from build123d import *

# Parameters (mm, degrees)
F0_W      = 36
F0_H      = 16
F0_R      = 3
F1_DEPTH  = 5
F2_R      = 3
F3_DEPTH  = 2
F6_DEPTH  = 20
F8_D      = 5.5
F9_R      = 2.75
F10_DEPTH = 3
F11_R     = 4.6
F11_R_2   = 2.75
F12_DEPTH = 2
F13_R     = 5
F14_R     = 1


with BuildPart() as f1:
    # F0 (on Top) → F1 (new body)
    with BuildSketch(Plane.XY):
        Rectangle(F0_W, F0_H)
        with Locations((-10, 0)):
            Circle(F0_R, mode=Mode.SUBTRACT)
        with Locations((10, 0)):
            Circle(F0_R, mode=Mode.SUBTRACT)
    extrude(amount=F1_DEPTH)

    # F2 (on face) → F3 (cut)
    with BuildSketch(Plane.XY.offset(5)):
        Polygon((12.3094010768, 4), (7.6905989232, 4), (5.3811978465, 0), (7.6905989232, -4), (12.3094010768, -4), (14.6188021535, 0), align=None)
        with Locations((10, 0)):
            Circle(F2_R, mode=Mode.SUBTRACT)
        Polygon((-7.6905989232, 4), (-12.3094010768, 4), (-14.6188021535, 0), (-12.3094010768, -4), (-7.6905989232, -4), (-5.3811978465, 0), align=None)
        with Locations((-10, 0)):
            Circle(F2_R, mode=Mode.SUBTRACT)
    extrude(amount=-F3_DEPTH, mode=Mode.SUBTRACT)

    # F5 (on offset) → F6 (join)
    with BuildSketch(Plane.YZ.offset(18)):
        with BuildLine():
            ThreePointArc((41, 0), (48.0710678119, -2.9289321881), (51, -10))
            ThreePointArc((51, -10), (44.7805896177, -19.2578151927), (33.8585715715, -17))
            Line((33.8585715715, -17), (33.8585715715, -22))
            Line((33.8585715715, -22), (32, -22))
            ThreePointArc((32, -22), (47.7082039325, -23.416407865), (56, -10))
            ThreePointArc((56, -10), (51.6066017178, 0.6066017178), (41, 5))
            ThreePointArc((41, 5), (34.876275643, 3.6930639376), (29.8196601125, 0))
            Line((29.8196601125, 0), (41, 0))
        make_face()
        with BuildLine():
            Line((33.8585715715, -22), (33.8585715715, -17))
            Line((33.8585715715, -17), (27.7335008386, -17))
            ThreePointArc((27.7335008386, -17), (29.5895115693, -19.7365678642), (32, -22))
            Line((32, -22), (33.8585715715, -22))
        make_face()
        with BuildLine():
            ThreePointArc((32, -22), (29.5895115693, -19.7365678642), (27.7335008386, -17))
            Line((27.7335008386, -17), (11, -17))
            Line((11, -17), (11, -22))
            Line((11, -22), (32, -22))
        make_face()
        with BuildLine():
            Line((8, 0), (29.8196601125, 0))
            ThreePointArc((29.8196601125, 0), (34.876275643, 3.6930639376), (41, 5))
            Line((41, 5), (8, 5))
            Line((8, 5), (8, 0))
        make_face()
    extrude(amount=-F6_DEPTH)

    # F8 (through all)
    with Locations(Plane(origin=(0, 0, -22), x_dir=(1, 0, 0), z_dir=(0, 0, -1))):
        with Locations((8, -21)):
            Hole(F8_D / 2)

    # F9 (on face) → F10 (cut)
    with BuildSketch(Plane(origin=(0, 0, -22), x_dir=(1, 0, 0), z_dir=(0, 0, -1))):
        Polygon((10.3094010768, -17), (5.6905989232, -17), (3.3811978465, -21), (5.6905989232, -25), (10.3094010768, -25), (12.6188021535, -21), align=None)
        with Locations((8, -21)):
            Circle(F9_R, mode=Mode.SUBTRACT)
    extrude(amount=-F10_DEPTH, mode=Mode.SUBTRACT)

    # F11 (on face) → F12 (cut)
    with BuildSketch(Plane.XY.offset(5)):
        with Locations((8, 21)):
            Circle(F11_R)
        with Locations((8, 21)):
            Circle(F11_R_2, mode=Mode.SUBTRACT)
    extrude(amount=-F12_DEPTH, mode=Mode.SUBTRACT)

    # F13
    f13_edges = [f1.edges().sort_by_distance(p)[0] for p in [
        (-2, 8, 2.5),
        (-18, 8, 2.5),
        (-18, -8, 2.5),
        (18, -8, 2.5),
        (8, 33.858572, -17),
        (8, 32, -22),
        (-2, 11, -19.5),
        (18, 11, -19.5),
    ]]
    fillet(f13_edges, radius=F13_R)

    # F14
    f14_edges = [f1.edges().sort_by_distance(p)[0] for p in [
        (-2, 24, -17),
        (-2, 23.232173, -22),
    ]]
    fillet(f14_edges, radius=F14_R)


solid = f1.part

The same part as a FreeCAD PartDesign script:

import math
import FreeCAD as App
import Part
import Sketcher

V = App.Vector
Q = App.Units.Quantity


def edges_at(feature, points):
    """Names of the edges that pass closest to the given points."""
    edges = feature.Shape.Edges
    near = lambda p: min(range(len(edges)), key=lambda i: edges[i].distToShape(Part.Vertex(*p))[0])
    return sorted({f"Edge{near(p) + 1}" for p in points})

doc = App.newDocument("Part")
params = doc.addObject("Spreadsheet::Sheet", "Params")
for row, (alias, value) in enumerate([
    ("sketch1_diameter", "6 mm"),
    ("sketch1_width", "36 mm"),
    ("sketch1_height", "16 mm"),
    ("pad1_length", "5 mm"),
    ("sketch2_diameter", "6 mm"),
    ("pocket1_length", "2 mm"),
    ("sketch3_radius", "10 mm"),
    ("sketch3_radius2", "15 mm"),
    ("sketch3_width", "21 mm"),
    ("sketch3_width2", "33 mm"),
    ("pad2_length", "20 mm"),
    ("sketch4_diameter", "5.5 mm"),
    ("hole_diameter", "5.5 mm"),
    ("sketch5_diameter", "5.5 mm"),
    ("pocket2_length", "3 mm"),
    ("sketch6_diameter", "9.2 mm"),
    ("sketch6_diameter2", "5.5 mm"),
    ("pocket3_length", "2 mm"),
    ("fillet_radius", "5 mm"),
    ("fillet2_radius", "1 mm"),
], start=1):
    params.set(f"A{row}", alias)
    params.set(f"B{row}", "=" + value)
    params.setAlias(f"B{row}", alias)

body = doc.addObject("PartDesign::Body", "Body")

# Sketch on XY plane
sketch1 = body.newObject("Sketcher::SketchObject", "Sketch")
sketch1.AttachmentSupport = (doc.getObject("XY_Plane"), [""])
sketch1.MapMode = "FlatFace"
sketch1.addGeometry([
    Part.LineSegment(V(-18, 8, 0), V(-18, -8, 0)),  # 0
    Part.LineSegment(V(-18, -8, 0), V(18, -8, 0)),  # 1
    Part.LineSegment(V(18, -8, 0), V(18, 8, 0)),  # 2
    Part.LineSegment(V(18, 8, 0), V(-18, 8, 0)),  # 3
    Part.Circle(V(-10, 0, 0), V(0, 0, 1), 3),  # 4
    Part.Circle(V(10, 0, 0), V(0, 0, 1), 3),  # 5
], False)
sketch1.addConstraint([
    Sketcher.Constraint("Coincident", 0, 2, 1, 1),
    Sketcher.Constraint("Coincident", 1, 2, 2, 1),
    Sketcher.Constraint("Coincident", 2, 2, 3, 1),
    Sketcher.Constraint("Coincident", 3, 2, 0, 1),
    Sketcher.Constraint("Vertical", 0),
    Sketcher.Constraint("Horizontal", 1),
    Sketcher.Constraint("Vertical", 2),
    Sketcher.Constraint("Horizontal", 3),
    Sketcher.Constraint("Equal", 4, 5),
    Sketcher.Constraint("Symmetric", 4, 3, 5, 3, -1, 1),
    Sketcher.Constraint("Symmetric", 0, 2, 2, 2, -1, 1),
    Sketcher.Constraint("PointOnObject", 4, 3, -1),
    Sketcher.Constraint("Diameter", 4, 6.0),
    Sketcher.Constraint("DistanceX", 1, 1, 1, 2, 36.0),
    Sketcher.Constraint("DistanceY", 0, 2, 0, 1, 16.0),
    Sketcher.Constraint("DistanceX", 4, 3, -1, 1, 10.0),
])
sketch1.setExpression("Constraints[12]", "Params.sketch1_diameter")
sketch1.setExpression("Constraints[13]", "Params.sketch1_width")
sketch1.setExpression("Constraints[14]", "Params.sketch1_height")
pad1 = body.newObject("PartDesign::Pad", "Pad")
pad1.Profile = sketch1
pad1.setExpression("Length", "Params.pad1_length")

# Sketch on XY plane
sketch2 = body.newObject("Sketcher::SketchObject", "Sketch001")
sketch2.AttachmentSupport = (doc.getObject("XY_Plane"), [""])
sketch2.MapMode = "FlatFace"
sketch2.AttachmentOffset = App.Placement(V(0, 0, 5), App.Rotation())
sketch2.addGeometry([
    Part.LineSegment(V(12.309401, 4, 0), V(7.690599, 4, 0)),  # 0
    Part.LineSegment(V(7.690599, 4, 0), V(5.381198, 0, 0)),  # 1
    Part.LineSegment(V(5.381198, 0, 0), V(7.690599, -4, 0)),  # 2
    Part.LineSegment(V(7.690599, -4, 0), V(12.309401, -4, 0)),  # 3
    Part.LineSegment(V(12.309401, -4, 0), V(14.618802, 0, 0)),  # 4
    Part.LineSegment(V(14.618802, 0, 0), V(12.309401, 4, 0)),  # 5
    Part.Circle(V(10, 0, 0), V(0, 0, 1), 3),  # 6
    Part.LineSegment(V(-7.690599, 4, 0), V(-12.309401, 4, 0)),  # 7
    Part.LineSegment(V(-12.309401, 4, 0), V(-14.618802, 0, 0)),  # 8
    Part.LineSegment(V(-14.618802, 0, 0), V(-12.309401, -4, 0)),  # 9
    Part.LineSegment(V(-12.309401, -4, 0), V(-7.690599, -4, 0)),  # 10
    Part.LineSegment(V(-7.690599, -4, 0), V(-5.381198, 0, 0)),  # 11
    Part.LineSegment(V(-5.381198, 0, 0), V(-7.690599, 4, 0)),  # 12
    Part.Circle(V(-10, 0, 0), V(0, 0, 1), 3),  # 13
], False)
sketch2.addConstraint([
    Sketcher.Constraint("Coincident", 0, 2, 1, 1),
    Sketcher.Constraint("Coincident", 1, 2, 2, 1),
    Sketcher.Constraint("Coincident", 2, 2, 3, 1),
    Sketcher.Constraint("Coincident", 3, 2, 4, 1),
    Sketcher.Constraint("Coincident", 4, 2, 5, 1),
    Sketcher.Constraint("Coincident", 5, 2, 0, 1),
    Sketcher.Constraint("Coincident", 7, 2, 8, 1),
    Sketcher.Constraint("Coincident", 8, 2, 9, 1),
    Sketcher.Constraint("Coincident", 9, 2, 10, 1),
    Sketcher.Constraint("Coincident", 10, 2, 11, 1),
    Sketcher.Constraint("Coincident", 11, 2, 12, 1),
    Sketcher.Constraint("Coincident", 12, 2, 7, 1),
    Sketcher.Constraint("Horizontal", 0),
    Sketcher.Constraint("Horizontal", 3),
    Sketcher.Constraint("Horizontal", 7),
    Sketcher.Constraint("Horizontal", 10),
    Sketcher.Constraint("Equal", 6, 13),
    Sketcher.Constraint("Symmetric", 6, 3, 13, 3, -1, 1),
    Sketcher.Constraint("Symmetric", 3, 2, 7, 2, -1, 1),
    Sketcher.Constraint("Symmetric", 4, 2, 8, 2, -1, 1),
    Sketcher.Constraint("Symmetric", 5, 2, 9, 2, -1, 1),
    Sketcher.Constraint("Symmetric", 1, 2, 11, 2, -1, 1),
    Sketcher.Constraint("Symmetric", 5, 2, 7, 2, -2),
    Sketcher.Constraint("PointOnObject", 6, 3, -1),
    Sketcher.Constraint("PointOnObject", 1, 2, -1),
    Sketcher.Constraint("PointOnObject", 4, 2, -1),
    Sketcher.Constraint("Parallel", 1, 4),
    Sketcher.Constraint("Parallel", 2, 5),
    Sketcher.Constraint("Parallel", 8, 11),
    Sketcher.Constraint("Parallel", 9, 12),
    Sketcher.Constraint("Diameter", 6, 6.0),
    Sketcher.Constraint("Angle", 1, Q("-120 deg")),
    Sketcher.Constraint("DistanceX", -1, 1, 6, 3, 10.0),
    Sketcher.Constraint("DistanceY", -1, 1, 0, 2, 4.0),
    Sketcher.Constraint("DistanceX", 7, 2, 0, 2, 20.0),
    Sketcher.Constraint("DistanceX", -1, 1, 0, 2, 7.690599),
])
sketch2.setExpression("Constraints[30]", "Params.sketch2_diameter")
pocket1 = body.newObject("PartDesign::Pocket", "Pocket")
pocket1.Profile = sketch2
pocket1.setExpression("Length", "Params.pocket1_length")

# Sketch on YZ plane
sketch3 = body.newObject("Sketcher::SketchObject", "Sketch002")
sketch3.AttachmentSupport = (doc.getObject("YZ_Plane"), [""])
sketch3.MapMode = "FlatFace"
sketch3.AttachmentOffset = App.Placement(V(0, 0, 18), App.Rotation())
sketch3.addGeometry([
    Part.ArcOfCircle(Part.Circle(V(41, -10, 0), V(0, 0, 1), 10), math.radians(0), math.radians(90)),  # 0
    Part.ArcOfCircle(Part.Circle(V(41, -10, 0), V(0, 0, 1), 10), math.radians(-135.572996), math.radians(0)),  # 1
    Part.LineSegment(V(33.858572, -17, 0), V(11, -17, 0)),  # 2
    Part.LineSegment(V(11, -17, 0), V(11, -22, 0)),  # 3
    Part.LineSegment(V(11, -22, 0), V(32, -22, 0)),  # 4
    Part.ArcOfCircle(Part.Circle(V(41, -10, 0), V(0, 0, 1), 15), math.radians(-126.869898), math.radians(90)),  # 5
    Part.LineSegment(V(41, 5, 0), V(8, 5, 0)),  # 6
    Part.LineSegment(V(8, 5, 0), V(8, 0, 0)),  # 7
    Part.LineSegment(V(8, 0, 0), V(41, 0, 0)),  # 8
], False)
sketch3.addConstraint([
    Sketcher.Constraint("Tangent", 0, 1, 1, 2),
    Sketcher.Constraint("Coincident", 1, 1, 2, 1),
    Sketcher.Constraint("Coincident", 2, 2, 3, 1),
    Sketcher.Constraint("Coincident", 3, 2, 4, 1),
    Sketcher.Constraint("Coincident", 4, 2, 5, 1),
    Sketcher.Constraint("Tangent", 5, 2, 6, 1),
    Sketcher.Constraint("Coincident", 6, 2, 7, 1),
    Sketcher.Constraint("Coincident", 7, 2, 8, 1),
    Sketcher.Constraint("Tangent", 8, 2, 0, 2),
    Sketcher.Constraint("Horizontal", 2),
    Sketcher.Constraint("Vertical", 3),
    Sketcher.Constraint("Horizontal", 4),
    Sketcher.Constraint("Horizontal", 6),
    Sketcher.Constraint("Vertical", 7),
    Sketcher.Constraint("Horizontal", 8),
    Sketcher.Constraint("Coincident", 5, 3, 0, 3),
    Sketcher.Constraint("Equal", 0, 1),
    Sketcher.Constraint("PointOnObject", 7, 2, -1),
    Sketcher.Constraint("Horizontal", 5, 3, 0, 1),
    Sketcher.Constraint("Equal", 3, 7),
    Sketcher.Constraint("Radius", 0, 10.0),
    Sketcher.Constraint("Radius", 5, 15.0),
    Sketcher.Constraint("DistanceX", 4, 1, 4, 2, 21.0),
    Sketcher.Constraint("DistanceX", 6, 2, 6, 1, 33.0),
    Sketcher.Constraint("DistanceX", -1, 1, 0, 3, 41.0),
    Sketcher.Constraint("DistanceY", 1, 1, -1, 1, 17.0),
])
sketch3.setExpression("Constraints[20]", "Params.sketch3_radius")
sketch3.setExpression("Constraints[21]", "Params.sketch3_radius2")
sketch3.setExpression("Constraints[22]", "Params.sketch3_width")
sketch3.setExpression("Constraints[23]", "Params.sketch3_width2")
pad2 = body.newObject("PartDesign::Pad", "Pad001")
pad2.Profile = sketch3
pad2.setExpression("Length", "Params.pad2_length")
pad2.Reversed = True

# Sketch on XY plane
sketch4 = body.newObject("Sketcher::SketchObject", "Sketch003")
sketch4.AttachmentSupport = (doc.getObject("XY_Plane"), [""])
sketch4.MapMode = "FlatFace"
sketch4.AttachmentOffset = App.Placement(V(0, 0, -22), App.Rotation())
sketch4.addGeometry(Part.Circle(V(8, 21, 0), V(0, 0, 1), 2.75), False)
sketch4.addConstraint([
    Sketcher.Constraint("Diameter", 0, 5.5),
    Sketcher.Constraint("DistanceX", -1, 1, 0, 3, 8.0),
    Sketcher.Constraint("DistanceY", -1, 1, 0, 3, 21.0),
])
sketch4.setExpression("Constraints[0]", "Params.sketch4_diameter")
doc.recompute()
hole = body.newObject("PartDesign::Hole", "Hole")
hole.Profile = sketch4
hole.ThreadType = "None"
hole.setExpression("Diameter", "Params.hole_diameter")
hole.DepthType = "ThroughAll"
hole.Reversed = True

# Sketch on XY plane
sketch5 = body.newObject("Sketcher::SketchObject", "Sketch004")
sketch5.AttachmentSupport = (doc.getObject("XY_Plane"), [""])
sketch5.MapMode = "FlatFace"
sketch5.AttachmentOffset = App.Placement(V(0, 0, -22), App.Rotation())
sketch5.addGeometry([
    Part.LineSegment(V(10.309401, 17, 0), V(5.690599, 17, 0)),  # 0
    Part.LineSegment(V(5.690599, 17, 0), V(3.381198, 21, 0)),  # 1
    Part.LineSegment(V(3.381198, 21, 0), V(5.690599, 25, 0)),  # 2
    Part.LineSegment(V(5.690599, 25, 0), V(10.309401, 25, 0)),  # 3
    Part.LineSegment(V(10.309401, 25, 0), V(12.618802, 21, 0)),  # 4
    Part.LineSegment(V(12.618802, 21, 0), V(10.309401, 17, 0)),  # 5
    Part.Circle(V(8, 21, 0), V(0, 0, 1), 2.75),  # 6
], False)
sketch5.addConstraint([
    Sketcher.Constraint("Coincident", 0, 2, 1, 1),
    Sketcher.Constraint("Coincident", 1, 2, 2, 1),
    Sketcher.Constraint("Coincident", 2, 2, 3, 1),
    Sketcher.Constraint("Coincident", 3, 2, 4, 1),
    Sketcher.Constraint("Coincident", 4, 2, 5, 1),
    Sketcher.Constraint("Coincident", 5, 2, 0, 1),
    Sketcher.Constraint("Horizontal", 0),
    Sketcher.Constraint("Horizontal", 3),
    Sketcher.Constraint("Parallel", 1, 4),
    Sketcher.Constraint("Parallel", 2, 5),
    Sketcher.Constraint("Horizontal", 6, 3, 1, 2),
    Sketcher.Constraint("Horizontal", 1, 2, 4, 2),
    Sketcher.Constraint("Vertical", 0, 2, 2, 2),
    Sketcher.Constraint("Vertical", 3, 2, 5, 2),
    Sketcher.Constraint("Diameter", 6, 5.5),
    Sketcher.Constraint("Angle", 1, Q("120 deg")),
    Sketcher.Constraint("DistanceX", -1, 1, 6, 3, 8.0),
    Sketcher.Constraint("DistanceY", -1, 1, 6, 3, 21.0),
    Sketcher.Constraint("DistanceY", -1, 1, 0, 2, 17.0),
    Sketcher.Constraint("DistanceX", -1, 1, 0, 2, 5.690599),
    Sketcher.Constraint("DistanceX", -1, 1, 3, 2, 10.309401),
])
sketch5.setExpression("Constraints[14]", "Params.sketch5_diameter")
pocket2 = body.newObject("PartDesign::Pocket", "Pocket001")
pocket2.Profile = sketch5
pocket2.setExpression("Length", "Params.pocket2_length")
pocket2.Reversed = True

# Sketch on XY plane
sketch6 = body.newObject("Sketcher::SketchObject", "Sketch005")
sketch6.AttachmentSupport = (doc.getObject("XY_Plane"), [""])
sketch6.MapMode = "FlatFace"
sketch6.AttachmentOffset = App.Placement(V(0, 0, 5), App.Rotation())
sketch6.addGeometry([
    Part.Circle(V(8, 21, 0), V(0, 0, 1), 4.6),
    Part.Circle(V(8, 21, 0), V(0, 0, 1), 2.75),
], False)
sketch6.addConstraint([
    Sketcher.Constraint("Coincident", 1, 3, 0, 3),
    Sketcher.Constraint("Diameter", 0, 9.2),
    Sketcher.Constraint("Diameter", 1, 5.5),
    Sketcher.Constraint("DistanceX", -1, 1, 0, 3, 8.0),
    Sketcher.Constraint("DistanceY", -1, 1, 0, 3, 21.0),
])
sketch6.setExpression("Constraints[1]", "Params.sketch6_diameter")
sketch6.setExpression("Constraints[2]", "Params.sketch6_diameter2")
pocket3 = body.newObject("PartDesign::Pocket", "Pocket002")
pocket3.Profile = sketch6
pocket3.setExpression("Length", "Params.pocket3_length")
doc.recompute()

fillet = body.newObject("PartDesign::Fillet", "Fillet")
fillet.Base = (pocket3, edges_at(pocket3, [
    (-2, 8, 2.5),
    (-18, 8, 2.5),
    (-18, -8, 2.5),
    (18, -8, 2.5),
    (8, 33.859, -17),
    (8, 32, -22),
    (-2, 11, -19.5),
    (18, 11, -19.5),
]))
fillet.setExpression("Radius", "Params.fillet_radius")
doc.recompute()

fillet2 = body.newObject("PartDesign::Fillet", "Fillet001")
fillet2.Base = (fillet, edges_at(fillet, [(-2, 24, -17), (-2, 23.232, -22)]))
fillet2.setExpression("Radius", "Params.fillet2_radius")

doc.recompute()
